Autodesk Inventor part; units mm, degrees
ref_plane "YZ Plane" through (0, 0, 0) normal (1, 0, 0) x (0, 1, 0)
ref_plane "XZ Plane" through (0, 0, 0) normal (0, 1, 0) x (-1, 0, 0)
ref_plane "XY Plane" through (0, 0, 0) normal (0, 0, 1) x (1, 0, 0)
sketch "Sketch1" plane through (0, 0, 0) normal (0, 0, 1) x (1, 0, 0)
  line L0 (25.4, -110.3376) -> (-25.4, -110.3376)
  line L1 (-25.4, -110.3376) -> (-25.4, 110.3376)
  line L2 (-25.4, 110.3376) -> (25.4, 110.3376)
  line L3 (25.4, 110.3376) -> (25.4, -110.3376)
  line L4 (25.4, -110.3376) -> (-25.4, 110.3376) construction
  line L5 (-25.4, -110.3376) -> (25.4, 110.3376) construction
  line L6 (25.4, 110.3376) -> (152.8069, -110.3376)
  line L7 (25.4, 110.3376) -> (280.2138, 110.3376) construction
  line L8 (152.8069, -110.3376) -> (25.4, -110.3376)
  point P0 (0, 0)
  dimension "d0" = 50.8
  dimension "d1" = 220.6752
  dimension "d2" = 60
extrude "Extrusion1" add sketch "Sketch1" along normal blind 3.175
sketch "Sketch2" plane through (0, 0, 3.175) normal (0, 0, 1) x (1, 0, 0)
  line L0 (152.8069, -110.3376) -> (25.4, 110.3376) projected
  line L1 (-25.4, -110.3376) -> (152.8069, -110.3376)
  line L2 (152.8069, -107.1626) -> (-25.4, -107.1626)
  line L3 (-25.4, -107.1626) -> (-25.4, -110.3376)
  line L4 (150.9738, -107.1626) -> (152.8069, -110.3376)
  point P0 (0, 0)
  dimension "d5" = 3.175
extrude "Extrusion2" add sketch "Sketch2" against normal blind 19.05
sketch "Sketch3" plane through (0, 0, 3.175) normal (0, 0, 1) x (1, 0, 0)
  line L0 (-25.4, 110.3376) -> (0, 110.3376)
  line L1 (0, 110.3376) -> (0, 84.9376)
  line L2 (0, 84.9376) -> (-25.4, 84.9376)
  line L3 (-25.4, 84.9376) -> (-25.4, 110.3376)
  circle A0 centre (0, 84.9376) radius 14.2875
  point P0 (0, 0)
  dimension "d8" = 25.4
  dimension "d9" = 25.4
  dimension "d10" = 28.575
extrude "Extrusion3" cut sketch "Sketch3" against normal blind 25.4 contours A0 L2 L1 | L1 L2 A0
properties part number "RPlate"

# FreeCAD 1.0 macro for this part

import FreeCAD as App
import Part
import Sketcher

V = App.Vector
Q = App.Units.Quantity

doc = App.newDocument("Part")
body = doc.addObject("PartDesign::Body", "Body")

# Sketch on XY plane
sketch1 = body.newObject("Sketcher::SketchObject", "Sketch")
sketch1.AttachmentSupport = (doc.getObject("XY_Plane"), [""])
sketch1.MapMode = "FlatFace"
sketch1.addGeometry(Part.LineSegment(V(-25, -110, 0), V(153, -110, 0)), False)
sketch1.addGeometry(Part.LineSegment(V(153, -110, 0), V(25, 110, 0)), False)
sketch1.addGeometry(Part.LineSegment(V(25, 110, 0), V(-25, 110, 0)), False)
sketch1.addGeometry(Part.LineSegment(V(-25, 110, 0), V(-25, -110, 0)), False)
sketch1.addConstraint(Sketcher.Constraint("Coincident", 0, 2, 1, 1))
sketch1.addConstraint(Sketcher.Constraint("Coincident", 1, 2, 2, 1))
sketch1.addConstraint(Sketcher.Constraint("Coincident", 2, 2, 3, 1))
sketch1.addConstraint(Sketcher.Constraint("Coincident", 3, 2, 0, 1))
sketch1.addConstraint(Sketcher.Constraint("Horizontal", 0))
sketch1.addConstraint(Sketcher.Constraint("Horizontal", 2))
sketch1.addConstraint(Sketcher.Constraint("Vertical", 3))
sketch1.addConstraint(Sketcher.Constraint("Symmetric", 1, 2, 3, 2, -1, 1))
sketch1.addConstraint(Sketcher.Constraint("DistanceX", 2, 2, 2, 1, Q("2 in")))
sketch1.addConstraint(Sketcher.Constraint("DistanceY", 3, 2, 3, 1, Q("8.688 in")))
sketch1.addConstraint(Sketcher.Constraint("Angle", 1, Q("120 deg")))
pad1 = body.newObject("PartDesign::Pad", "Pad")
pad1.Profile = sketch1
pad1.Length = Q("0.125 in")

# Sketch on XY plane
sketch2 = body.newObject("Sketcher::SketchObject", "Sketch001")
sketch2.AttachmentSupport = (doc.getObject("XY_Plane"), [""])
sketch2.MapMode = "FlatFace"
sketch2.AttachmentOffset = App.Placement(V(0, 0, 0.125 * 25.4), App.Rotation())
sketch2.addGeometry(Part.LineSegment(V(-25.4, -110.3, 0), V(152.8, -110.3, 0)), False)
sketch2.addGeometry(Part.LineSegment(V(152.8, -110.3, 0), V(151, -107.2, 0)), False)
sketch2.addGeometry(Part.LineSegment(V(151, -107.2, 0), V(-25.4, -107.2, 0)), False)
sketch2.addGeometry(Part.LineSegment(V(-25.4, -107.2, 0), V(-25.4, -110.3, 0)), False)
sketch2.addConstraint(Sketcher.Constraint("Coincident", 0, 2, 1, 1))
sketch2.addConstraint(Sketcher.Constraint("Coincident", 1, 2, 2, 1))
sketch2.addConstraint(Sketcher.Constraint("Coincident", 2, 2, 3, 1))
sketch2.addConstraint(Sketcher.Constraint("Coincident", 3, 2, 0, 1))
sketch2.addConstraint(Sketcher.Constraint("Horizontal", 0))
sketch2.addConstraint(Sketcher.Constraint("Horizontal", 2))
sketch2.addConstraint(Sketcher.Constraint("Vertical", 3))
sketch2.addConstraint(Sketcher.Constraint("DistanceY", 3, 2, 3, 1, Q("0.125 in")))
sketch2.addConstraint(Sketcher.Constraint("DistanceX", 2, 2, -1, 1, Q("1 in")))
sketch2.addConstraint(Sketcher.Constraint("Angle", 1, Q("120 deg")))
sketch2.addConstraint(Sketcher.Constraint("DistanceY", 0, 2, -1, 1, Q("4.344 in")))
sketch2.addConstraint(Sketcher.Constraint("DistanceX", 0, 1, 0, 2, 178.207))
pad2 = body.newObject("PartDesign::Pad", "Pad001")
pad2.Profile = sketch2
pad2.Length = Q("0.75 in")
pad2.Reversed = True

# Sketch on XY plane
sketch3 = body.newObject("Sketcher::SketchObject", "Sketch002")
sketch3.AttachmentSupport = (doc.getObject("XY_Plane"), [""])
sketch3.MapMode = "FlatFace"
sketch3.AttachmentOffset = App.Placement(V(0, 0, 0.125 * 25.4), App.Rotation())
sketch3.addGeometry(Part.Circle(V(0, 85, 0), V(0, 0, 1), 14), False)
sketch3.addConstraint(Sketcher.Constraint("PointOnObject", 0, 3, -2))
sketch3.addConstraint(Sketcher.Constraint("Diameter", 0, Q("1.125 in")))
sketch3.addConstraint(Sketcher.Constraint("DistanceY", -1, 1, 0, 3, Q("3.344 in")))
pocket1 = body.newObject("PartDesign::Pocket", "Pocket")
pocket1.Profile = sketch3
pocket1.Length = Q("1 in")

doc.recompute()
